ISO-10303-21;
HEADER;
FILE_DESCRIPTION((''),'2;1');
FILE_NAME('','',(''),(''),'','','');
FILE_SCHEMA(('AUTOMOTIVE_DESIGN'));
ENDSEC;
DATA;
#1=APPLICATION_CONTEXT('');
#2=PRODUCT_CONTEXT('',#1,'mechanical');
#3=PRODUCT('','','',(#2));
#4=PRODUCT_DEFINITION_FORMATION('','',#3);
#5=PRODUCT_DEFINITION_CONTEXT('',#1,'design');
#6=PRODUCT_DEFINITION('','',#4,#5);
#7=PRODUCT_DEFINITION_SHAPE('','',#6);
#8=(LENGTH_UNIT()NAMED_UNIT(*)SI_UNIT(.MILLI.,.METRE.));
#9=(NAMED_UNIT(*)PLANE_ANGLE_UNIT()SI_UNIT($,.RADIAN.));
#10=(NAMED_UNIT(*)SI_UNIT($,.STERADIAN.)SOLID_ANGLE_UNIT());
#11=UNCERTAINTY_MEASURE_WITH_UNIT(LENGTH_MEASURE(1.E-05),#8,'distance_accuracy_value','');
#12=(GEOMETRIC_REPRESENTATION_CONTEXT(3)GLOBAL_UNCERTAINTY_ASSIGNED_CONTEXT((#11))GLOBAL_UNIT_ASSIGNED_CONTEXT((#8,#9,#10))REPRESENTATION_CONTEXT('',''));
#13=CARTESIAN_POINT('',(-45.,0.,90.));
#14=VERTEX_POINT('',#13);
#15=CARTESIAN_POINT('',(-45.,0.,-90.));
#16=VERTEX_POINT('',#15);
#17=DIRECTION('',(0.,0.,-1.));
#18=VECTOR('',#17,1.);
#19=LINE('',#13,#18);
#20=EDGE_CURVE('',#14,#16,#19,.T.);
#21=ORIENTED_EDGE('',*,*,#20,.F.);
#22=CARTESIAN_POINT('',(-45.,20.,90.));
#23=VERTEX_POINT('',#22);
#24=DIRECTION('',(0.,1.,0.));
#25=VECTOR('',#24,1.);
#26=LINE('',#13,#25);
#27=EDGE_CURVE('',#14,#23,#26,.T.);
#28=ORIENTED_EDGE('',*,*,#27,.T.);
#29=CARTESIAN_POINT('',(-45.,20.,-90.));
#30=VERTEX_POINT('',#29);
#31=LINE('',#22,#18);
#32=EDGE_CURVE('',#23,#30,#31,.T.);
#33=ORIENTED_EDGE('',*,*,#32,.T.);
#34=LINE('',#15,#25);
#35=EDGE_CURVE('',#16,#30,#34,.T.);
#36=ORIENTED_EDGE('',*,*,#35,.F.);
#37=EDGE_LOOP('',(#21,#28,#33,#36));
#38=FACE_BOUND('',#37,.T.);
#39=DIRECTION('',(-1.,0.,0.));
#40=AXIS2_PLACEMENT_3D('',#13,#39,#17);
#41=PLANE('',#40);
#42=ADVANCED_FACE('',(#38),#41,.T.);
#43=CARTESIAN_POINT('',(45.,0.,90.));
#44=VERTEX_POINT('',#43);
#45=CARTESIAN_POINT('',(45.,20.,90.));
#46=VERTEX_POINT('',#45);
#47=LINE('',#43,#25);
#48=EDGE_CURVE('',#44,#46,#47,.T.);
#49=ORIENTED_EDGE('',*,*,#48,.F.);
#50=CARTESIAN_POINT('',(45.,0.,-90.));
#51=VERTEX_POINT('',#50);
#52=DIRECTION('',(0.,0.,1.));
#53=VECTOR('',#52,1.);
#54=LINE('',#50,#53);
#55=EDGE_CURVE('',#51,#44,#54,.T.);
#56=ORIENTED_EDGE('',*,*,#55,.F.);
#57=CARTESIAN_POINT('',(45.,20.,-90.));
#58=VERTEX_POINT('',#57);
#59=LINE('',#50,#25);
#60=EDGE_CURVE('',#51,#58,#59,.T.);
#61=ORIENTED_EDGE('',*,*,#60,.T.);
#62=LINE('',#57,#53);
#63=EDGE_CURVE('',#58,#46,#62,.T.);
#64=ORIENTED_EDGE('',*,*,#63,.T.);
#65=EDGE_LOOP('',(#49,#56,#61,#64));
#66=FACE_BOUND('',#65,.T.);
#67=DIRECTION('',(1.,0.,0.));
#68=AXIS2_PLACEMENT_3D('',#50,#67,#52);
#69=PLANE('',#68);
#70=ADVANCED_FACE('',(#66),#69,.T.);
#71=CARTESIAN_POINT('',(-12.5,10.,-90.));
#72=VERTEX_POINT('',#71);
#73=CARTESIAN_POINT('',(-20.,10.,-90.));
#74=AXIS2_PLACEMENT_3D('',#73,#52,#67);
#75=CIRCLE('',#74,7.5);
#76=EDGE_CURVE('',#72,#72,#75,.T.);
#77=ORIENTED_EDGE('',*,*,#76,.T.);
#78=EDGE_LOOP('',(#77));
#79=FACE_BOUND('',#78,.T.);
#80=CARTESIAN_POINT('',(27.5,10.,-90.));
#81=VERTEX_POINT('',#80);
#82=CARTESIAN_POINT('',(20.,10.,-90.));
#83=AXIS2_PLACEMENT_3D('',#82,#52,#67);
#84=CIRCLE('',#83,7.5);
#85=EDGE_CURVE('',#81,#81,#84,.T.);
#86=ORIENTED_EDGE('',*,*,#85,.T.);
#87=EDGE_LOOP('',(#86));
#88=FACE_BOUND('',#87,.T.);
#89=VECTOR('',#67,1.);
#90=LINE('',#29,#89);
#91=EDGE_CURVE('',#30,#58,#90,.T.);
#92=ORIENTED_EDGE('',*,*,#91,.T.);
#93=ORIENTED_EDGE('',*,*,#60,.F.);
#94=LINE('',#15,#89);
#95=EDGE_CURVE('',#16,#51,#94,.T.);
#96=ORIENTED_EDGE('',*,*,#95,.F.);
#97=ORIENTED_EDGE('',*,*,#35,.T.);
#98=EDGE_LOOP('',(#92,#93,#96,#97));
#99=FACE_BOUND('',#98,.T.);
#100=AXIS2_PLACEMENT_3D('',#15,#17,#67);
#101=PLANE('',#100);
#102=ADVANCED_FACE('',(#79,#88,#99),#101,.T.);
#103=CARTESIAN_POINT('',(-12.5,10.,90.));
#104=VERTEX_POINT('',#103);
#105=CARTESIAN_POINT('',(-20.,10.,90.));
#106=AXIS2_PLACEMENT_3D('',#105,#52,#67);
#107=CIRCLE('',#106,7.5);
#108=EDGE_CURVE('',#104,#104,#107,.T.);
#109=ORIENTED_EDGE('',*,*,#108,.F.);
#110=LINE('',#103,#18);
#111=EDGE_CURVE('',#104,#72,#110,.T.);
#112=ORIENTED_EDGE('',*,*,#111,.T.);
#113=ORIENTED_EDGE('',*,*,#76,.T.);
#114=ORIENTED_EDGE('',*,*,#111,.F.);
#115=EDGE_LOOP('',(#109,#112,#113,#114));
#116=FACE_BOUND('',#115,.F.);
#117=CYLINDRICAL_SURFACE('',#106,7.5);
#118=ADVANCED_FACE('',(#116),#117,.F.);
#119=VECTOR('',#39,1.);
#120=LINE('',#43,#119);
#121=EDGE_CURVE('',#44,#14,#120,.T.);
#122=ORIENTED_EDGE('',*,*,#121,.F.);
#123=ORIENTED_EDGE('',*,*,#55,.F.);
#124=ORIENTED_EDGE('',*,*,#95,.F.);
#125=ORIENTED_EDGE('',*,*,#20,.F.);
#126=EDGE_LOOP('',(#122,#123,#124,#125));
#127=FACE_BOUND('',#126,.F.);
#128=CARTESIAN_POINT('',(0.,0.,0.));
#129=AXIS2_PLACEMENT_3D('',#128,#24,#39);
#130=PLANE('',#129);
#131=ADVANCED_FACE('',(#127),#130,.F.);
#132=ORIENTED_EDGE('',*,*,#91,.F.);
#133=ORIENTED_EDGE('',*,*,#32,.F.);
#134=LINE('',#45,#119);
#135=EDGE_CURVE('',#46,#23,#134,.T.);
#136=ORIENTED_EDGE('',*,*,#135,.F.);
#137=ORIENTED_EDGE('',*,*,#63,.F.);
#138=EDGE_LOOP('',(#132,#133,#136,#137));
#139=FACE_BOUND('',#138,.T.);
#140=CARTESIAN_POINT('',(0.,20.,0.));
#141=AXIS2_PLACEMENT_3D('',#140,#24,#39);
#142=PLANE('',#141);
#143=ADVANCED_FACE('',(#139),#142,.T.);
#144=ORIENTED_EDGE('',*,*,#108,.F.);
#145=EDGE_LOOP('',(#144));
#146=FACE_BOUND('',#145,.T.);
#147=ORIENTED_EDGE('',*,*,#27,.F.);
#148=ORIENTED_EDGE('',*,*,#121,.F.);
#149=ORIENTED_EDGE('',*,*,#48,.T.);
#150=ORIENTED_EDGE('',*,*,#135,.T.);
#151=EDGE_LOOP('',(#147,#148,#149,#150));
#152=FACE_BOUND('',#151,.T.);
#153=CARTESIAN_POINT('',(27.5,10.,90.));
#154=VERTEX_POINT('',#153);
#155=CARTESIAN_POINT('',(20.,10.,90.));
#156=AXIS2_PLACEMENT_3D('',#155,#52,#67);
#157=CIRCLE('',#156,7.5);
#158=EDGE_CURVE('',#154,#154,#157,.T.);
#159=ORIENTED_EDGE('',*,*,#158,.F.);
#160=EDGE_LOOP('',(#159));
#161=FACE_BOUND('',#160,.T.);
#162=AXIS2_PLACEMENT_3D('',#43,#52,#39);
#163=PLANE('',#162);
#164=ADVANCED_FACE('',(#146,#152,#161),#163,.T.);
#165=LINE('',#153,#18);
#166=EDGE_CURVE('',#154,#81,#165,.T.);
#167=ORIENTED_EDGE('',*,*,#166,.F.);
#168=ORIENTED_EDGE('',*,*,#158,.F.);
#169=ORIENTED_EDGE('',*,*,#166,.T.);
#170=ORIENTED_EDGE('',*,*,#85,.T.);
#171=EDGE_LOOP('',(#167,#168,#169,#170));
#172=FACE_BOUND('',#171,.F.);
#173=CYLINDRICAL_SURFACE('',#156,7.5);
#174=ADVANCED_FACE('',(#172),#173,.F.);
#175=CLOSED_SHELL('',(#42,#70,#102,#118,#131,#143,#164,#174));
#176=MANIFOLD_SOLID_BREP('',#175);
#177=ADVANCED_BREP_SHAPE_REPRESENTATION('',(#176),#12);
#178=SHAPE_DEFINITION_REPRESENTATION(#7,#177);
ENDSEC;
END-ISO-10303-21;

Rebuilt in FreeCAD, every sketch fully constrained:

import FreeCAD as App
import Part
import Sketcher
from FreeCAD import Vector

doc = App.newDocument("Part")
body = doc.addObject("PartDesign::Body", "Body")

# Sketch on XZ plane
sketch1 = body.newObject("Sketcher::SketchObject", "Sketch")
sketch1.AttachmentSupport = (doc.getObject("XZ_Plane"), [""])
sketch1.MapMode = "FlatFace"
sketch1.addGeometry([
    Part.LineSegment(Vector(-45, 90, 0), Vector(45, 90, 0)),
    Part.LineSegment(Vector(45, 90, 0), Vector(45, -90, 0)),
    Part.LineSegment(Vector(45, -90, 0), Vector(-45, -90, 0)),
    Part.LineSegment(Vector(-45, -90, 0), Vector(-45, 90, 0)),
], False)
sketch1.addConstraint([
    Sketcher.Constraint("Coincident", 0, 2, 1, 1),
    Sketcher.Constraint("Coincident", 1, 2, 2, 1),
    Sketcher.Constraint("Coincident", 2, 2, 3, 1),
    Sketcher.Constraint("Coincident", 3, 2, 0, 1),
    Sketcher.Constraint("Horizontal", 0),
    Sketcher.Constraint("Vertical", 1),
    Sketcher.Constraint("Horizontal", 2),
    Sketcher.Constraint("Vertical", 3),
    Sketcher.Constraint("Symmetric", 0, 2, 2, 2, -1, 1),
    Sketcher.Constraint("DistanceX", 0, 1, 0, 2, 90.0),
    Sketcher.Constraint("DistanceY", 1, 2, 1, 1, 180.0),
])
pad1 = body.newObject("PartDesign::Pad", "Pad")
pad1.Profile = sketch1
pad1.Length = 20
pad1.Reversed = True

# Sketch on XY plane
sketch2 = body.newObject("Sketcher::SketchObject", "Sketch001")
sketch2.AttachmentSupport = (doc.getObject("XY_Plane"), [""])
sketch2.MapMode = "FlatFace"
sketch2.AttachmentOffset = App.Placement(Vector(0, 0, 90), App.Rotation())
sketch2.addGeometry([
    Part.Circle(Vector(20, 10, 0), Vector(0, 0, 1), 8),
    Part.Circle(Vector(-20, 10, 0), Vector(0, 0, 1), 8),
], False)
sketch2.addConstraint([
    Sketcher.Constraint("Equal", 0, 1),
    Sketcher.Constraint("Symmetric", 0, 3, 1, 3, -2),
    Sketcher.Constraint("Diameter", 0, 15.0),
    Sketcher.Constraint("DistanceX", -1, 1, 0, 3, 20.0),
    Sketcher.Constraint("DistanceY", -1, 1, 0, 3, 10.0),
])
pocket1 = body.newObject("PartDesign::Pocket", "Pocket")
pocket1.Profile = sketch2
pocket1.Type = "ThroughAll"

doc.recompute()
